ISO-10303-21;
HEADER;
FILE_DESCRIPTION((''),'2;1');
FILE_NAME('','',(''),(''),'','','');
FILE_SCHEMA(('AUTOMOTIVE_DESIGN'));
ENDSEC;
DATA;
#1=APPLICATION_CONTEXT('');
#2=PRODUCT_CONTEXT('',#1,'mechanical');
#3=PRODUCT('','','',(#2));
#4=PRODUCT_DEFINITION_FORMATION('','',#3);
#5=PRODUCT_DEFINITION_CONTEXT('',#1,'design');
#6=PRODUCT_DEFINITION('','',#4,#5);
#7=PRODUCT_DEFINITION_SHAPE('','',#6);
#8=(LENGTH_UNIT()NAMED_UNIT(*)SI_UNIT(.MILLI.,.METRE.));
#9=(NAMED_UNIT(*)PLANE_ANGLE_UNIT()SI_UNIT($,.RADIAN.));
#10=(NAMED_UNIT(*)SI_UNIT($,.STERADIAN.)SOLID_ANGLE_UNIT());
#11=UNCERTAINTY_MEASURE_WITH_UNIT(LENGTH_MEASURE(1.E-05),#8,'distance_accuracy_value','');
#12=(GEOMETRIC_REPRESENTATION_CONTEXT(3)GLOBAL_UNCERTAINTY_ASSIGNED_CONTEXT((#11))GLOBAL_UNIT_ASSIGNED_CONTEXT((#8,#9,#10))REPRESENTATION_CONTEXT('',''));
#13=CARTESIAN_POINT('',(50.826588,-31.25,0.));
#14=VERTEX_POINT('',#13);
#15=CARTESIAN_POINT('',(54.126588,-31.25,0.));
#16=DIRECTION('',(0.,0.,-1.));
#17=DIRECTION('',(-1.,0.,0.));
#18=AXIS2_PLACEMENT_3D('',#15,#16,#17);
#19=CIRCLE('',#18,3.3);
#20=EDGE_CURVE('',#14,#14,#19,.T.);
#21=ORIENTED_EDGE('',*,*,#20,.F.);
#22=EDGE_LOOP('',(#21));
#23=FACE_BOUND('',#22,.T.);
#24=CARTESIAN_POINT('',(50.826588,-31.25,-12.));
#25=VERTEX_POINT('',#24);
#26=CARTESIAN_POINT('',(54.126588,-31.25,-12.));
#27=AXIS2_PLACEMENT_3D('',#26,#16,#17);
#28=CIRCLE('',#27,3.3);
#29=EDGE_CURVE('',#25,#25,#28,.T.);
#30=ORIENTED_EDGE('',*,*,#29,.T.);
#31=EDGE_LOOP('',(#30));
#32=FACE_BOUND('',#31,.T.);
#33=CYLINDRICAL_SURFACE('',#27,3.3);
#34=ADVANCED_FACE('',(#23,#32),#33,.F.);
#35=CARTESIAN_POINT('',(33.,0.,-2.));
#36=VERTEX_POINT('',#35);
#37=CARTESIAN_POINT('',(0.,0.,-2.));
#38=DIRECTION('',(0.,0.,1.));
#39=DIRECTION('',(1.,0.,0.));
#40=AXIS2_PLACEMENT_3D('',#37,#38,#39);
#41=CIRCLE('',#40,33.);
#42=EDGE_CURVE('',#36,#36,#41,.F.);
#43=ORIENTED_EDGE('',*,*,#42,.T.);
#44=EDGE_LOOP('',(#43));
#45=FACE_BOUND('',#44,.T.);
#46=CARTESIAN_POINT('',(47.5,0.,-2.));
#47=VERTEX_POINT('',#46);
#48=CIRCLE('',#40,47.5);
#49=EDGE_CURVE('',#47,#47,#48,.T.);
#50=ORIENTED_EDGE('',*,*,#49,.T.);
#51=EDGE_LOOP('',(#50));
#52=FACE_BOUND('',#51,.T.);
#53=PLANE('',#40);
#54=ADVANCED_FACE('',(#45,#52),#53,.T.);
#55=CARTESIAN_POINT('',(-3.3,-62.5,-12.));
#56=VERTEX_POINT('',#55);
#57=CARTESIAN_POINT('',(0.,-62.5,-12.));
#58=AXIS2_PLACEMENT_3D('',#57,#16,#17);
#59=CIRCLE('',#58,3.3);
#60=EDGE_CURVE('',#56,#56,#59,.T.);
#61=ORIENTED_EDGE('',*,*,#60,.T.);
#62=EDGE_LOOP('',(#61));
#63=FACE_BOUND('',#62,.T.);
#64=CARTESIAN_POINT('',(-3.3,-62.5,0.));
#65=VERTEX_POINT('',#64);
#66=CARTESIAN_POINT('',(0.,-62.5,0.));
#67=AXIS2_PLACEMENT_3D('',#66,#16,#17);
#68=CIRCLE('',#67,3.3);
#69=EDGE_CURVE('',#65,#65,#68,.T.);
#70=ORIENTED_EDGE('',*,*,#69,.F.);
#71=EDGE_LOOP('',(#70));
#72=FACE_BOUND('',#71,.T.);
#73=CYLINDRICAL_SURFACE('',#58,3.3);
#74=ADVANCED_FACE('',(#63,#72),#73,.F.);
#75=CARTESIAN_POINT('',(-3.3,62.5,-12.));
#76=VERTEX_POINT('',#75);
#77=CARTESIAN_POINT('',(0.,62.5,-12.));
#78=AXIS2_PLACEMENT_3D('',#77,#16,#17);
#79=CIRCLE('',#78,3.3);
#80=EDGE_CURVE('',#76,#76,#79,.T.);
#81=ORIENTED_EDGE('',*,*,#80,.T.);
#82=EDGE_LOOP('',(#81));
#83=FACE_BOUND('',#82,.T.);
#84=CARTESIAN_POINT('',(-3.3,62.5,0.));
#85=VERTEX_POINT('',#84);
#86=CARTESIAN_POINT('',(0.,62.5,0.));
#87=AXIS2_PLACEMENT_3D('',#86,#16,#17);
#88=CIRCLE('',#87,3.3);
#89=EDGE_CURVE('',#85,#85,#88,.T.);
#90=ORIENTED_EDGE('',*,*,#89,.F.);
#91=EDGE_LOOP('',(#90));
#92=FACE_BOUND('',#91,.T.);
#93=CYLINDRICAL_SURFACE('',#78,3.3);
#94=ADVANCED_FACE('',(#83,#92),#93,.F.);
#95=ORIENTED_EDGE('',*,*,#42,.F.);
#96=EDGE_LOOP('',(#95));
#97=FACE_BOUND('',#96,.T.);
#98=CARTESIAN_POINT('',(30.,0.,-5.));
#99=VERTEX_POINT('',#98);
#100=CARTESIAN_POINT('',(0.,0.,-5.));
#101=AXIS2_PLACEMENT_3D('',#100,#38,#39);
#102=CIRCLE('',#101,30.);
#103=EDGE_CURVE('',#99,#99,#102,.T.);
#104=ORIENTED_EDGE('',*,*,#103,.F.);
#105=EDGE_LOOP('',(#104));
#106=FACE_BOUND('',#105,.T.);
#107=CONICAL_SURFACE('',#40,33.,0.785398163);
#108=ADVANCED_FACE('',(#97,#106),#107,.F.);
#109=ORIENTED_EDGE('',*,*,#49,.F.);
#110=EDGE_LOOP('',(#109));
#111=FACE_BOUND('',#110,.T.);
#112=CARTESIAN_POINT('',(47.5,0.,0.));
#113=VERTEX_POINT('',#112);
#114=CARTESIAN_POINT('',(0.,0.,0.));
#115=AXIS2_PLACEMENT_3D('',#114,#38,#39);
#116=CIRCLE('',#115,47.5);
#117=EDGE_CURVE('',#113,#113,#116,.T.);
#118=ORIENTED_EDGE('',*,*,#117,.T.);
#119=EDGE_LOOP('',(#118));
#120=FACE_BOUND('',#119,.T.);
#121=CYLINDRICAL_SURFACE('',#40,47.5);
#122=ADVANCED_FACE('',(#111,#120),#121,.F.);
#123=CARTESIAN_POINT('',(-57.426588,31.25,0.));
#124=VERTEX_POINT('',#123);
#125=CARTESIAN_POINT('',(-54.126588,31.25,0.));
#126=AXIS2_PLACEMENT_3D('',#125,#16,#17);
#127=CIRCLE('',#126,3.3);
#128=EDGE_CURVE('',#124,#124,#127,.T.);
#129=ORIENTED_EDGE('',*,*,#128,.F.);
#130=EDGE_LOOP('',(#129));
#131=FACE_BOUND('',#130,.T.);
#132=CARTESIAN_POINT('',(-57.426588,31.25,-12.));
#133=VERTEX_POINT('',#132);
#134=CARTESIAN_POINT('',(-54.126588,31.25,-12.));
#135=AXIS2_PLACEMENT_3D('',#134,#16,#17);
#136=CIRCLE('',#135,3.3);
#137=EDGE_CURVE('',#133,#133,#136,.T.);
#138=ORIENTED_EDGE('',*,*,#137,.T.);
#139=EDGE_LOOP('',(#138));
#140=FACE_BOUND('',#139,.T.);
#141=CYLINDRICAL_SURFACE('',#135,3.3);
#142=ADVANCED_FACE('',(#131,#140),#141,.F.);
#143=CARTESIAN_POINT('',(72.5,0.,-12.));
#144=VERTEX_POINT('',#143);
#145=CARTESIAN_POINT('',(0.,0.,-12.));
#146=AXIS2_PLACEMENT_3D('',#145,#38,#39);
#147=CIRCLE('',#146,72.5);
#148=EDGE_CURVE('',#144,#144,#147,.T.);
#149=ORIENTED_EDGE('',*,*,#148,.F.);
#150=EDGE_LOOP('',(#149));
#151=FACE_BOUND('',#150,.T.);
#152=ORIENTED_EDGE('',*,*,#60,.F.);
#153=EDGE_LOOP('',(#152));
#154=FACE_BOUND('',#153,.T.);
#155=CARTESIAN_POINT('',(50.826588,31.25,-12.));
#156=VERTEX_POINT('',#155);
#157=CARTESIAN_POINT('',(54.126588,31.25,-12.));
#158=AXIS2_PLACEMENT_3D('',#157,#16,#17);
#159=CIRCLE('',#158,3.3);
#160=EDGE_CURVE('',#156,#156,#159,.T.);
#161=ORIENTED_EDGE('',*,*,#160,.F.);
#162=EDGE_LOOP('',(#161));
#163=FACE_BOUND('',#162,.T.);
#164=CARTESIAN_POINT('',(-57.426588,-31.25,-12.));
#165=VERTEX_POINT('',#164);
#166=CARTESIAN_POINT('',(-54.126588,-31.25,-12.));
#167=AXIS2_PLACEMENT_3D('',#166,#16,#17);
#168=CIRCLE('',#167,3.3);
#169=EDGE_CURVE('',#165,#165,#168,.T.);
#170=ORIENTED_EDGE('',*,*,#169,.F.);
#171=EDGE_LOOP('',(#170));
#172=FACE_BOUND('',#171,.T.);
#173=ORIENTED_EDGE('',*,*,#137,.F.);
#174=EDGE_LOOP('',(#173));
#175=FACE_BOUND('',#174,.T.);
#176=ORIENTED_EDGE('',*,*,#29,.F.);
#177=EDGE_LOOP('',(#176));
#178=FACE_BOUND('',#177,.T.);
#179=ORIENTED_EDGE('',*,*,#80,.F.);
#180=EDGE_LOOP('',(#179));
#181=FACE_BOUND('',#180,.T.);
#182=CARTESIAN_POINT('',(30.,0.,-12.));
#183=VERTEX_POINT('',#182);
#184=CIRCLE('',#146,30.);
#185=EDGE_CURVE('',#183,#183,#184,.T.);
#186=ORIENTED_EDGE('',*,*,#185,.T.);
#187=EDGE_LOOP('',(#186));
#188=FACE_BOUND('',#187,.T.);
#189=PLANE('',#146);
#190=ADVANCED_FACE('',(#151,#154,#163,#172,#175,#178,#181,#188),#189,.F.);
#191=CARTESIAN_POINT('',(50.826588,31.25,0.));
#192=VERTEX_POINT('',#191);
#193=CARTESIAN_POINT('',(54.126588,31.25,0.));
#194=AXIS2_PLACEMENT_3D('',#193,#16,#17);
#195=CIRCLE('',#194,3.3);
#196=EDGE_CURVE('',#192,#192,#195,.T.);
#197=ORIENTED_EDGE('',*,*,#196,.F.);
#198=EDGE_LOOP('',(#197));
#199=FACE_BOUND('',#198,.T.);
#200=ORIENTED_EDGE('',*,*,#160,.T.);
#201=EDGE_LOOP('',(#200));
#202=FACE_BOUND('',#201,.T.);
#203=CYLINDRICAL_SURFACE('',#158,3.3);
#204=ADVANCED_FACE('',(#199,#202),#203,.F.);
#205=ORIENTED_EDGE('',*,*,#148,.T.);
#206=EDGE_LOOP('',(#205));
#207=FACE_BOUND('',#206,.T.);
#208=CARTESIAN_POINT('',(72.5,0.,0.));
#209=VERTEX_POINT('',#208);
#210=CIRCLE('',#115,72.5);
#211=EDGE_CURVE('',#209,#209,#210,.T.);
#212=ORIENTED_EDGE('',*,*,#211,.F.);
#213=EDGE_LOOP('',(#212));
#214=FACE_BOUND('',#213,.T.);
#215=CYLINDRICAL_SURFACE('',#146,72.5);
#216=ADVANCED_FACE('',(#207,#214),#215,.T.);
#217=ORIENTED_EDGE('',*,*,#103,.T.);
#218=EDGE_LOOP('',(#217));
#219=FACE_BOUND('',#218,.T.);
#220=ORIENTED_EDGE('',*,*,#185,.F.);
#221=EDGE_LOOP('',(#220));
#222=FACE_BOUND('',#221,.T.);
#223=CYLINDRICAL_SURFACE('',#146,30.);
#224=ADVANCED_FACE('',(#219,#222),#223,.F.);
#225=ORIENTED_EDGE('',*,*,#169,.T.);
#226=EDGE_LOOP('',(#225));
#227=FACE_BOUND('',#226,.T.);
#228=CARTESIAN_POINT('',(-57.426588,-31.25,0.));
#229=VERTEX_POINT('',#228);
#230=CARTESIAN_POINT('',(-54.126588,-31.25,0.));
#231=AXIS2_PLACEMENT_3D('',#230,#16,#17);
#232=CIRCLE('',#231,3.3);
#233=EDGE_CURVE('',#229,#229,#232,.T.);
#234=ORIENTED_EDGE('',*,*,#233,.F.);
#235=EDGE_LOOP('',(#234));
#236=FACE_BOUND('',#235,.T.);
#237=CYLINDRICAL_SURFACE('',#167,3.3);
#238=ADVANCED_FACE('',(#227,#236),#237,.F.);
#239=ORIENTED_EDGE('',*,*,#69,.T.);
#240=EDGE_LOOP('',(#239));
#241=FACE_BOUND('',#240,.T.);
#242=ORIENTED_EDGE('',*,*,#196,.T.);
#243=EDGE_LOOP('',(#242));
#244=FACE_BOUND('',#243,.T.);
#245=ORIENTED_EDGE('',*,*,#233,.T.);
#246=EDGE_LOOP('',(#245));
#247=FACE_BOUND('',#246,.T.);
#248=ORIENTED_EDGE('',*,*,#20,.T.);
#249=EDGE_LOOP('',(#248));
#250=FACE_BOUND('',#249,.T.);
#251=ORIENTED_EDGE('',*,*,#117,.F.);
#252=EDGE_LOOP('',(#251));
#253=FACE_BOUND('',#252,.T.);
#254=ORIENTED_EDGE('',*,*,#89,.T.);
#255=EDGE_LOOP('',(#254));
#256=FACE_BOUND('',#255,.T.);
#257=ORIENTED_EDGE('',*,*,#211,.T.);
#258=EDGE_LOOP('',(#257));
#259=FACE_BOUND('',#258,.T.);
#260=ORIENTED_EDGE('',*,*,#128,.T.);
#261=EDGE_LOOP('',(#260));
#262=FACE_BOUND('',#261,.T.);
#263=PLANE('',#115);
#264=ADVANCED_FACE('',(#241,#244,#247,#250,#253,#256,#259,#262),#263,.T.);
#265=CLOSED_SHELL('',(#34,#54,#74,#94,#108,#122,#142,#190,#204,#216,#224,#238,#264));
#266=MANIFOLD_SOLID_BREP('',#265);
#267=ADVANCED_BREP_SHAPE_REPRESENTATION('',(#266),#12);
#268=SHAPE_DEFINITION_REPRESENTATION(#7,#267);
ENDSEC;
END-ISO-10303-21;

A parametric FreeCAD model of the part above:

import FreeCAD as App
import Part
import Sketcher


def edges_at(feature, points):
    """Names of the edges that pass closest to the given points."""
    edges = feature.Shape.Edges
    near = lambda p: min(range(len(edges)), key=lambda i: edges[i].distToShape(Part.Vertex(*p))[0])
    return sorted({f"Edge{near(p) + 1}" for p in points})

doc = App.newDocument("Part")
body = doc.addObject("PartDesign::Body", "Body")

# Sketch on XY plane
sketch1 = body.newObject("Sketcher::SketchObject", "Sketch")
sketch1.AttachmentSupport = (doc.getObject("XY_Plane"), [""])
sketch1.MapMode = "FlatFace"
sketch1.addGeometry(Part.Circle(App.Vector(0, 0, 0), App.Vector(0, 0, 1), 72), False)
sketch1.addGeometry(Part.Circle(App.Vector(0, 0, 0), App.Vector(0, 0, 1), 30), False)
sketch1.addConstraint(Sketcher.Constraint("Coincident", 0, 3, -1, 1))
sketch1.addConstraint(Sketcher.Constraint("Coincident", 1, 3, -1, 1))
sketch1.addConstraint(Sketcher.Constraint("Diameter", 0, 145.0))
sketch1.addConstraint(Sketcher.Constraint("Diameter", 1, 60.0))
pad1 = body.newObject("PartDesign::Pad", "Pad")
pad1.Profile = sketch1
pad1.Length = 12
pad1.Reversed = True

# Sketch on XY plane
sketch2 = body.newObject("Sketcher::SketchObject", "Sketch001")
sketch2.AttachmentSupport = (doc.getObject("XY_Plane"), [""])
sketch2.MapMode = "FlatFace"
sketch2.AttachmentOffset = App.Placement(App.Vector(0, 0, -12), App.Rotation())
sketch2.addGeometry(Part.Circle(App.Vector(0, 62.5, 0), App.Vector(0, 0, 1), 3.3), False)
sketch2.addConstraint(Sketcher.Constraint("PointOnObject", 0, 3, -2))
sketch2.addConstraint(Sketcher.Constraint("Diameter", 0, 6.6))
sketch2.addConstraint(Sketcher.Constraint("DistanceY", -1, 1, 0, 3, 62.5))
doc.recompute()
hole = body.newObject("PartDesign::Hole", "Hole")
hole.Profile = sketch2
hole.ThreadType = "None"
hole.Diameter = 6.6
hole.DepthType = "ThroughAll"
hole.Reversed = True
doc.recompute()

polarpattern = body.newObject("PartDesign::PolarPattern", "PolarPattern")
polarpattern.Originals = [hole]
polarpattern.Axis = (doc.getObject("Z_Axis"), [""])
polarpattern.Angle = 360
polarpattern.Occurrences = 6
body.Tip = polarpattern

# Sketch on XY plane
sketch3 = body.newObject("Sketcher::SketchObject", "Sketch002")
sketch3.AttachmentSupport = (doc.getObject("XY_Plane"), [""])
sketch3.MapMode = "FlatFace"
sketch3.addGeometry(Part.Circle(App.Vector(0, 0, 0), App.Vector(0, 0, 1), 48), False)
sketch3.addConstraint(Sketcher.Constraint("Coincident", 0, 3, -1, 1))
sketch3.addConstraint(Sketcher.Constraint("Diameter", 0, 95.0))
pocket1 = body.newObject("PartDesign::Pocket", "Pocket")
pocket1.Profile = sketch3
pocket1.Length = 2
doc.recompute()

chamfer = body.newObject("PartDesign::Chamfer", "Chamfer")
chamfer.Base = (pocket1, edges_at(pocket1, [(-30, 0, -2)]))
chamfer.Size = 3

doc.recompute()
